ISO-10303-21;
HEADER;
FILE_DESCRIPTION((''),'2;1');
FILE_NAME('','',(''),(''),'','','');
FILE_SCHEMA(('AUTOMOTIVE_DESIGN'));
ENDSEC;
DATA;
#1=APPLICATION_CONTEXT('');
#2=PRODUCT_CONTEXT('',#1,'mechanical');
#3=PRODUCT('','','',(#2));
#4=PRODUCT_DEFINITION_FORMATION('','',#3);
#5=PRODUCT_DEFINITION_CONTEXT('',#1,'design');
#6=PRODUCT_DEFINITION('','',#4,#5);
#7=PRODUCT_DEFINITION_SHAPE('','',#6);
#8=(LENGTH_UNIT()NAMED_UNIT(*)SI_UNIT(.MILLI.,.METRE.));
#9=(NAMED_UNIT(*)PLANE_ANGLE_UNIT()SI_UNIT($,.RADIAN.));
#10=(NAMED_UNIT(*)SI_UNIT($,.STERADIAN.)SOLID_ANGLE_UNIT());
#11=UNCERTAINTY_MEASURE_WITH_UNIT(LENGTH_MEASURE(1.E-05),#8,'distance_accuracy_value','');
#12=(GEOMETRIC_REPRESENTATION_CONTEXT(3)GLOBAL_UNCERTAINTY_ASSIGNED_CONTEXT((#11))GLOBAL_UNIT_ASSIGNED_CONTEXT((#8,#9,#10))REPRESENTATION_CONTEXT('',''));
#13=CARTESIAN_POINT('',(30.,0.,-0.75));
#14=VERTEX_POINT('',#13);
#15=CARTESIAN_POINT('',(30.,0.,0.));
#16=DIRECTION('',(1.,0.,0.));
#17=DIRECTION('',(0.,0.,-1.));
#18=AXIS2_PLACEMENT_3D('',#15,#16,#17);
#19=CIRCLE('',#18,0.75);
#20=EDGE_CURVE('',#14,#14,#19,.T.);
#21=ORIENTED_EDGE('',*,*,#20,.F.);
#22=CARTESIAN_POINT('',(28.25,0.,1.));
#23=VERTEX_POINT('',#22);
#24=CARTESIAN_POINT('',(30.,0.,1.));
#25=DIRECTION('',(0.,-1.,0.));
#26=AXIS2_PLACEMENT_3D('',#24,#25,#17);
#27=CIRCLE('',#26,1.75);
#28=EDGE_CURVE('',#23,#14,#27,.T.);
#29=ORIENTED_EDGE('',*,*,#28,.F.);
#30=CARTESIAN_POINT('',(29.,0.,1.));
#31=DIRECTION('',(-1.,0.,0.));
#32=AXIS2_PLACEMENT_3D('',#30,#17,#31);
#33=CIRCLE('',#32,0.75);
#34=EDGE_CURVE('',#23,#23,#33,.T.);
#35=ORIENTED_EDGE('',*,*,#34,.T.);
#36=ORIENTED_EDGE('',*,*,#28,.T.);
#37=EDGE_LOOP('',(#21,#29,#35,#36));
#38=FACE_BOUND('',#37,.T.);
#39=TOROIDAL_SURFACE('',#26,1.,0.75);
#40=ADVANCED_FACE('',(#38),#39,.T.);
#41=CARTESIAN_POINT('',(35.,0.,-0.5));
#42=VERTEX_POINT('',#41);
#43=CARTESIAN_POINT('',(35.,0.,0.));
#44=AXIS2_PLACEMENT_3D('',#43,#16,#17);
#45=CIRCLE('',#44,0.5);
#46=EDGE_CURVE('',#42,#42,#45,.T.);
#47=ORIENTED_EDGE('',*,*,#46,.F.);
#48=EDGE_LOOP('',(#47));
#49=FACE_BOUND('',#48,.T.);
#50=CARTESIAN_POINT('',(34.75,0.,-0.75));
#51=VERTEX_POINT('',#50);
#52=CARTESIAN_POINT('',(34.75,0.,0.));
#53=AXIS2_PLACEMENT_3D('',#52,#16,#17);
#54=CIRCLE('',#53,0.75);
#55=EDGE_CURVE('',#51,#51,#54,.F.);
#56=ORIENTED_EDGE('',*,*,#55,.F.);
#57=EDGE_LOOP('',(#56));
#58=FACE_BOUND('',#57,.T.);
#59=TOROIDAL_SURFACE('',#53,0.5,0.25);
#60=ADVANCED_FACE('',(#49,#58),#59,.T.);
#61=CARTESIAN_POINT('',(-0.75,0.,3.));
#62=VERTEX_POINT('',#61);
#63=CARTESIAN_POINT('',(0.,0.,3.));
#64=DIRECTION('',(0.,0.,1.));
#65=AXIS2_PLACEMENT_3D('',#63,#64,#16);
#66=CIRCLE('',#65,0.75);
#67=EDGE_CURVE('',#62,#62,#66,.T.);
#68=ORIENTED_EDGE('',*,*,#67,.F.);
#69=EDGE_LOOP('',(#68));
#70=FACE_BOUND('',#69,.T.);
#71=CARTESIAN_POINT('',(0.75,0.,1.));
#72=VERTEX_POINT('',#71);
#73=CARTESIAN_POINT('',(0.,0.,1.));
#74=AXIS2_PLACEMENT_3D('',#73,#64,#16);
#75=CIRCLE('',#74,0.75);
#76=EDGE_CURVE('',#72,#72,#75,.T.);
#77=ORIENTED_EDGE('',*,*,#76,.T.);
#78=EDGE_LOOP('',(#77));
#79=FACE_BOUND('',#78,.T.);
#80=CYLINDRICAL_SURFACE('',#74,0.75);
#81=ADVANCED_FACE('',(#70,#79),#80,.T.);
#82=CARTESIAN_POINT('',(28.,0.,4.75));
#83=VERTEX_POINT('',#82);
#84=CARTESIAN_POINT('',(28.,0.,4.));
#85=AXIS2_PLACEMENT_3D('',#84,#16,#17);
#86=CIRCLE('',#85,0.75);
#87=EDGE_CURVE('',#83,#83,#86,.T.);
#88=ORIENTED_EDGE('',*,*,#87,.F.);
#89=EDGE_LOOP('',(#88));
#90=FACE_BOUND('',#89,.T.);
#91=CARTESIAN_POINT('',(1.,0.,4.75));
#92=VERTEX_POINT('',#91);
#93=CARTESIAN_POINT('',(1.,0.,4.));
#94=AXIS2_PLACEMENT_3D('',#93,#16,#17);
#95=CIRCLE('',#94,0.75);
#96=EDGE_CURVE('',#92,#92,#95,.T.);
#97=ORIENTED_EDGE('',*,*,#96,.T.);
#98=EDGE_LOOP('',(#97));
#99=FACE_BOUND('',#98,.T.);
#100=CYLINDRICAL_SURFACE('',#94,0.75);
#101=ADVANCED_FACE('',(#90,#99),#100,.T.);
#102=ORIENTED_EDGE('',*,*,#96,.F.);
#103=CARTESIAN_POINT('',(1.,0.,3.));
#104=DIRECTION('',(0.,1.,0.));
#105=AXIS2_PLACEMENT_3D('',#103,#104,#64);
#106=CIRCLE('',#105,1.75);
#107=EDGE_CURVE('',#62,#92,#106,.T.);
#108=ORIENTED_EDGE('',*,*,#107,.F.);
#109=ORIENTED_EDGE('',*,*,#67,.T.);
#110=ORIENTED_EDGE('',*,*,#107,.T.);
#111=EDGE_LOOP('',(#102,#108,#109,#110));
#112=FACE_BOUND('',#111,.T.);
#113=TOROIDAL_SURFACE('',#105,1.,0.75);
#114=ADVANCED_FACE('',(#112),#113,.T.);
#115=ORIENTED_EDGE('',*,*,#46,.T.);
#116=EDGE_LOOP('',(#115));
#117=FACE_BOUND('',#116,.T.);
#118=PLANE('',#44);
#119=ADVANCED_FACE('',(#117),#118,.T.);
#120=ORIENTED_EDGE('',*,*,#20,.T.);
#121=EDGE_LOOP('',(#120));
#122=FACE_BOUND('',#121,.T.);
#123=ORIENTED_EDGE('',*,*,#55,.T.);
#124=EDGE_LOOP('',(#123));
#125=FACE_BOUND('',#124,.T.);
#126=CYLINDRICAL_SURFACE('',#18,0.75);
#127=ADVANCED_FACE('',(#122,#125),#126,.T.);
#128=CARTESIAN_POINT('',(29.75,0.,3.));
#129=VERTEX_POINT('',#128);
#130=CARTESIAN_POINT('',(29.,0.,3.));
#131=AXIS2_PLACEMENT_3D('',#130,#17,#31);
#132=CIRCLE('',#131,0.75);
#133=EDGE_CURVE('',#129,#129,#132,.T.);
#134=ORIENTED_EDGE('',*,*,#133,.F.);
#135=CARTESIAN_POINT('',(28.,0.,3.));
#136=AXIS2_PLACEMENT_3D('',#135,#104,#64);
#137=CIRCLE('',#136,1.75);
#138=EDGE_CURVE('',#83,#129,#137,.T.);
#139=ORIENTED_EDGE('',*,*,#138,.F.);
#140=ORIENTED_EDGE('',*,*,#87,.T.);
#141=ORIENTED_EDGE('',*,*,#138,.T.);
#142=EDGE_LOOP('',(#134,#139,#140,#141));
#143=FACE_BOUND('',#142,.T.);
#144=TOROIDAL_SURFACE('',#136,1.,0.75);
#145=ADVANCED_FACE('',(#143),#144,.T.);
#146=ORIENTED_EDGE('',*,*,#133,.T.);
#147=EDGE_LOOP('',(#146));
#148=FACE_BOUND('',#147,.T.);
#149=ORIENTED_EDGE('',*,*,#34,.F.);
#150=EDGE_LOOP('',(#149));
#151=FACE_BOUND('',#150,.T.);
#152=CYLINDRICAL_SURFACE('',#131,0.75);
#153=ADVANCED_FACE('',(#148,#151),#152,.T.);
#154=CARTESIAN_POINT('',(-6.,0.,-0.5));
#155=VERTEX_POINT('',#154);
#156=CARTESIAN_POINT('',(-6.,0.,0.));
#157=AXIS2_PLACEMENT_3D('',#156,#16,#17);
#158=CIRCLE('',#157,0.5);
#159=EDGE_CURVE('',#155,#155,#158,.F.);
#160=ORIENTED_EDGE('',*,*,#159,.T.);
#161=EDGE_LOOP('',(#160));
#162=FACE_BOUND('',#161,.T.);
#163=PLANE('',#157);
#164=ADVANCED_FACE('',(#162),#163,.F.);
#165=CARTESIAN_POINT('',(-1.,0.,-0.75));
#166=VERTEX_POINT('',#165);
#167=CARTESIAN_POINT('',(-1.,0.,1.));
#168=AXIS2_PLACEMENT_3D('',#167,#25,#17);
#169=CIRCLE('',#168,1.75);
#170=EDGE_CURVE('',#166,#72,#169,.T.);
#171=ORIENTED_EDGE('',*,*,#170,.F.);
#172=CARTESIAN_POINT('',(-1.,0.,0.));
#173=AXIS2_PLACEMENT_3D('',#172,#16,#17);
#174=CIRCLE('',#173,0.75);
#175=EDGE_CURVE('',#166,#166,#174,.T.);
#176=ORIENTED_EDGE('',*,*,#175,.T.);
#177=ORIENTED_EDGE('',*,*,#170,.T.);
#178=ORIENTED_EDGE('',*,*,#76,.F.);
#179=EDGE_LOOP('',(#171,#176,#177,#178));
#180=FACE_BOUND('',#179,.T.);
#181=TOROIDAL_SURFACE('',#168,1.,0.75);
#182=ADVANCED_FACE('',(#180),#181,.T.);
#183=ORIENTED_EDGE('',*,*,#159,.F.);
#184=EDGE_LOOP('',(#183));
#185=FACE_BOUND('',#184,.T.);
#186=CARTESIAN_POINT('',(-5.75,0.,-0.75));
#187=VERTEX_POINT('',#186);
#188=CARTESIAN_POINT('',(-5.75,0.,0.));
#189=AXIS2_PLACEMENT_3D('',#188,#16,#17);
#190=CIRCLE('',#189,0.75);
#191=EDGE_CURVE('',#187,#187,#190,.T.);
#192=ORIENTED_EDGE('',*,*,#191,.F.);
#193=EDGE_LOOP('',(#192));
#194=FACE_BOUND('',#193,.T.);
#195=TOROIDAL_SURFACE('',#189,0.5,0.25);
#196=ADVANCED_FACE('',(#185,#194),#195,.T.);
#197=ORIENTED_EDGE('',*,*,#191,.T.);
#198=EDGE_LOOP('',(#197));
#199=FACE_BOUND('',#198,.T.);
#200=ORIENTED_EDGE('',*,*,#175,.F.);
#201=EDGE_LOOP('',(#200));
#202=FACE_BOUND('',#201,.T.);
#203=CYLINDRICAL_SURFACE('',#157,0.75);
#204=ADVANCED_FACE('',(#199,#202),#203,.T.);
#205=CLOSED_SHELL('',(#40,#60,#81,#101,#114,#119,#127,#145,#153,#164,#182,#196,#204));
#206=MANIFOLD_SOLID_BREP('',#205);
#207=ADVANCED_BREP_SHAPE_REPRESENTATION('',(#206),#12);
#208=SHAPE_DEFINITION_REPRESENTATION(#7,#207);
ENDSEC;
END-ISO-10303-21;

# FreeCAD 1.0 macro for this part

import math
import FreeCAD as App
import Part
import Sketcher
from FreeCAD import Vector
Q = App.Units.Quantity


def edges_at(feature, points):
    """Names of the edges that pass closest to the given points."""
    edges = feature.Shape.Edges
    near = lambda p: min(range(len(edges)), key=lambda i: edges[i].distToShape(Part.Vertex(*p))[0])
    return sorted({f"Edge{near(p) + 1}" for p in points})

doc = App.newDocument("Part")
params = doc.addObject("Spreadsheet::Sheet", "Params")
for row, (alias, value) in enumerate([
    ("sketch1_diameter", "1.5 mm"),
    ("sketch2_radius", "1 mm"),
    ("sketch2_width", "5 mm"),
    ("sketch2_width2", "27 mm"),
    ("sketch2_height", "2 mm"),
    ("fillet_radius", "0.25 mm"),
], start=1):
    params.set(f"A{row}", alias)
    params.set(f"B{row}", "=" + value)
    params.setAlias(f"B{row}", alias)

body = doc.addObject("PartDesign::Body", "Body")

sketch1 = doc.addObject("Sketcher::SketchObject", "Sketch")
body.addObject(sketch1)
sketch1.AttachmentSupport = (doc.YZ_Plane, [""])
sketch1.MapMode = "FlatFace"
sketch1.AttachmentOffset = App.Placement(Vector(0, 0, -6), App.Rotation())
sketch1.addGeometry(Part.Circle(Vector(0, 0, 0), Vector(0, 0, 1), 0.8), False)
sketch1.addConstraint([
    Sketcher.Constraint("Coincident", 0, 3, -1, 1),
    Sketcher.Constraint("Diameter", 0, Q("1.5 mm")),
])
sketch1.setExpression("Constraints[1]", "Params.sketch1_diameter")

sketch2 = doc.addObject("Sketcher::SketchObject", "Sketch001")
body.addObject(sketch2)
sketch2.AttachmentSupport = (doc.XZ_Plane, [""])
sketch2.MapMode = "FlatFace"
sketch2.addGeometry([
    Part.LineSegment(Vector(-6, 0, 0), Vector(-1, 0, 0)),
    Part.ArcOfCircle(Part.Circle(Vector(-1, 1, 0), Vector(0, 0, 1), 1), math.radians(-90), math.radians(0)),
    Part.LineSegment(Vector(0, 1, 0), Vector(0, 3, 0)),
    Part.ArcOfCircle(Part.Circle(Vector(1, 3, 0), Vector(0, 0, 1), 1), math.radians(90), math.radians(180)),
    Part.LineSegment(Vector(1, 4, 0), Vector(28, 4, 0)),
    Part.ArcOfCircle(Part.Circle(Vector(28, 3, 0), Vector(0, 0, 1), 1), math.radians(0), math.radians(90)),
    Part.LineSegment(Vector(29, 3, 0), Vector(29, 1, 0)),
    Part.ArcOfCircle(Part.Circle(Vector(30, 1, 0), Vector(0, 0, 1), 1), math.radians(-180), math.radians(-90)),
    Part.LineSegment(Vector(30, 0, 0), Vector(35, 0, 0)),
], False)
sketch2.addConstraint([
    Sketcher.Constraint("Tangent", 0, 2, 1, 1),
    Sketcher.Constraint("Tangent", 1, 2, 2, 1),
    Sketcher.Constraint("Tangent", 2, 2, 3, 2),
    Sketcher.Constraint("Tangent", 3, 1, 4, 1),
    Sketcher.Constraint("Tangent", 4, 2, 5, 2),
    Sketcher.Constraint("Tangent", 5, 1, 6, 1),
    Sketcher.Constraint("Tangent", 6, 2, 7, 1),
    Sketcher.Constraint("Tangent", 7, 2, 8, 1),
    Sketcher.Constraint("Horizontal", 0),
    Sketcher.Constraint("Vertical", 2),
    Sketcher.Constraint("Horizontal", 4),
    Sketcher.Constraint("Vertical", 6),
    Sketcher.Constraint("Horizontal", 8),
    Sketcher.Constraint("Equal", 1, 3),
    Sketcher.Constraint("Equal", 3, 5),
    Sketcher.Constraint("Equal", 5, 7),
    Sketcher.Constraint("PointOnObject", 0, 1, -1),
    Sketcher.Constraint("PointOnObject", 1, 2, -2),
    Sketcher.Constraint("PointOnObject", 7, 2, -1),
    Sketcher.Constraint("Equal", 0, 8),
    Sketcher.Constraint("Radius", 1, Q("1 mm")),
    Sketcher.Constraint("DistanceX", 0, 1, 0, 2, Q("5 mm")),
    Sketcher.Constraint("DistanceX", 4, 1, 4, 2, Q("27 mm")),
    Sketcher.Constraint("DistanceY", 2, 1, 2, 2, Q("2 mm")),
])
sketch2.setExpression("Constraints[20]", "Params.sketch2_radius")
sketch2.setExpression("Constraints[21]", "Params.sketch2_width")
sketch2.setExpression("Constraints[22]", "Params.sketch2_width2")
sketch2.setExpression("Constraints[23]", "Params.sketch2_height")
doc.recompute()

additivepipe = doc.addObject("PartDesign::AdditivePipe", "AdditivePipe")
body.addObject(additivepipe)
additivepipe.Profile = sketch1
additivepipe.Spine = (sketch2, ["Edge1", "Edge2", "Edge3", "Edge4", "Edge5", "Edge6", "Edge7", "Edge8", "Edge9"])
doc.recompute()

fillet = doc.addObject("PartDesign::Fillet", "Fillet")
body.addObject(fillet)
fillet.Base = (additivepipe, edges_at(additivepipe, [(35, 0, 0.75), (-6, 0, 0.75)]))
fillet.setExpression("Radius", "Params.fillet_radius")

doc.recompute()
